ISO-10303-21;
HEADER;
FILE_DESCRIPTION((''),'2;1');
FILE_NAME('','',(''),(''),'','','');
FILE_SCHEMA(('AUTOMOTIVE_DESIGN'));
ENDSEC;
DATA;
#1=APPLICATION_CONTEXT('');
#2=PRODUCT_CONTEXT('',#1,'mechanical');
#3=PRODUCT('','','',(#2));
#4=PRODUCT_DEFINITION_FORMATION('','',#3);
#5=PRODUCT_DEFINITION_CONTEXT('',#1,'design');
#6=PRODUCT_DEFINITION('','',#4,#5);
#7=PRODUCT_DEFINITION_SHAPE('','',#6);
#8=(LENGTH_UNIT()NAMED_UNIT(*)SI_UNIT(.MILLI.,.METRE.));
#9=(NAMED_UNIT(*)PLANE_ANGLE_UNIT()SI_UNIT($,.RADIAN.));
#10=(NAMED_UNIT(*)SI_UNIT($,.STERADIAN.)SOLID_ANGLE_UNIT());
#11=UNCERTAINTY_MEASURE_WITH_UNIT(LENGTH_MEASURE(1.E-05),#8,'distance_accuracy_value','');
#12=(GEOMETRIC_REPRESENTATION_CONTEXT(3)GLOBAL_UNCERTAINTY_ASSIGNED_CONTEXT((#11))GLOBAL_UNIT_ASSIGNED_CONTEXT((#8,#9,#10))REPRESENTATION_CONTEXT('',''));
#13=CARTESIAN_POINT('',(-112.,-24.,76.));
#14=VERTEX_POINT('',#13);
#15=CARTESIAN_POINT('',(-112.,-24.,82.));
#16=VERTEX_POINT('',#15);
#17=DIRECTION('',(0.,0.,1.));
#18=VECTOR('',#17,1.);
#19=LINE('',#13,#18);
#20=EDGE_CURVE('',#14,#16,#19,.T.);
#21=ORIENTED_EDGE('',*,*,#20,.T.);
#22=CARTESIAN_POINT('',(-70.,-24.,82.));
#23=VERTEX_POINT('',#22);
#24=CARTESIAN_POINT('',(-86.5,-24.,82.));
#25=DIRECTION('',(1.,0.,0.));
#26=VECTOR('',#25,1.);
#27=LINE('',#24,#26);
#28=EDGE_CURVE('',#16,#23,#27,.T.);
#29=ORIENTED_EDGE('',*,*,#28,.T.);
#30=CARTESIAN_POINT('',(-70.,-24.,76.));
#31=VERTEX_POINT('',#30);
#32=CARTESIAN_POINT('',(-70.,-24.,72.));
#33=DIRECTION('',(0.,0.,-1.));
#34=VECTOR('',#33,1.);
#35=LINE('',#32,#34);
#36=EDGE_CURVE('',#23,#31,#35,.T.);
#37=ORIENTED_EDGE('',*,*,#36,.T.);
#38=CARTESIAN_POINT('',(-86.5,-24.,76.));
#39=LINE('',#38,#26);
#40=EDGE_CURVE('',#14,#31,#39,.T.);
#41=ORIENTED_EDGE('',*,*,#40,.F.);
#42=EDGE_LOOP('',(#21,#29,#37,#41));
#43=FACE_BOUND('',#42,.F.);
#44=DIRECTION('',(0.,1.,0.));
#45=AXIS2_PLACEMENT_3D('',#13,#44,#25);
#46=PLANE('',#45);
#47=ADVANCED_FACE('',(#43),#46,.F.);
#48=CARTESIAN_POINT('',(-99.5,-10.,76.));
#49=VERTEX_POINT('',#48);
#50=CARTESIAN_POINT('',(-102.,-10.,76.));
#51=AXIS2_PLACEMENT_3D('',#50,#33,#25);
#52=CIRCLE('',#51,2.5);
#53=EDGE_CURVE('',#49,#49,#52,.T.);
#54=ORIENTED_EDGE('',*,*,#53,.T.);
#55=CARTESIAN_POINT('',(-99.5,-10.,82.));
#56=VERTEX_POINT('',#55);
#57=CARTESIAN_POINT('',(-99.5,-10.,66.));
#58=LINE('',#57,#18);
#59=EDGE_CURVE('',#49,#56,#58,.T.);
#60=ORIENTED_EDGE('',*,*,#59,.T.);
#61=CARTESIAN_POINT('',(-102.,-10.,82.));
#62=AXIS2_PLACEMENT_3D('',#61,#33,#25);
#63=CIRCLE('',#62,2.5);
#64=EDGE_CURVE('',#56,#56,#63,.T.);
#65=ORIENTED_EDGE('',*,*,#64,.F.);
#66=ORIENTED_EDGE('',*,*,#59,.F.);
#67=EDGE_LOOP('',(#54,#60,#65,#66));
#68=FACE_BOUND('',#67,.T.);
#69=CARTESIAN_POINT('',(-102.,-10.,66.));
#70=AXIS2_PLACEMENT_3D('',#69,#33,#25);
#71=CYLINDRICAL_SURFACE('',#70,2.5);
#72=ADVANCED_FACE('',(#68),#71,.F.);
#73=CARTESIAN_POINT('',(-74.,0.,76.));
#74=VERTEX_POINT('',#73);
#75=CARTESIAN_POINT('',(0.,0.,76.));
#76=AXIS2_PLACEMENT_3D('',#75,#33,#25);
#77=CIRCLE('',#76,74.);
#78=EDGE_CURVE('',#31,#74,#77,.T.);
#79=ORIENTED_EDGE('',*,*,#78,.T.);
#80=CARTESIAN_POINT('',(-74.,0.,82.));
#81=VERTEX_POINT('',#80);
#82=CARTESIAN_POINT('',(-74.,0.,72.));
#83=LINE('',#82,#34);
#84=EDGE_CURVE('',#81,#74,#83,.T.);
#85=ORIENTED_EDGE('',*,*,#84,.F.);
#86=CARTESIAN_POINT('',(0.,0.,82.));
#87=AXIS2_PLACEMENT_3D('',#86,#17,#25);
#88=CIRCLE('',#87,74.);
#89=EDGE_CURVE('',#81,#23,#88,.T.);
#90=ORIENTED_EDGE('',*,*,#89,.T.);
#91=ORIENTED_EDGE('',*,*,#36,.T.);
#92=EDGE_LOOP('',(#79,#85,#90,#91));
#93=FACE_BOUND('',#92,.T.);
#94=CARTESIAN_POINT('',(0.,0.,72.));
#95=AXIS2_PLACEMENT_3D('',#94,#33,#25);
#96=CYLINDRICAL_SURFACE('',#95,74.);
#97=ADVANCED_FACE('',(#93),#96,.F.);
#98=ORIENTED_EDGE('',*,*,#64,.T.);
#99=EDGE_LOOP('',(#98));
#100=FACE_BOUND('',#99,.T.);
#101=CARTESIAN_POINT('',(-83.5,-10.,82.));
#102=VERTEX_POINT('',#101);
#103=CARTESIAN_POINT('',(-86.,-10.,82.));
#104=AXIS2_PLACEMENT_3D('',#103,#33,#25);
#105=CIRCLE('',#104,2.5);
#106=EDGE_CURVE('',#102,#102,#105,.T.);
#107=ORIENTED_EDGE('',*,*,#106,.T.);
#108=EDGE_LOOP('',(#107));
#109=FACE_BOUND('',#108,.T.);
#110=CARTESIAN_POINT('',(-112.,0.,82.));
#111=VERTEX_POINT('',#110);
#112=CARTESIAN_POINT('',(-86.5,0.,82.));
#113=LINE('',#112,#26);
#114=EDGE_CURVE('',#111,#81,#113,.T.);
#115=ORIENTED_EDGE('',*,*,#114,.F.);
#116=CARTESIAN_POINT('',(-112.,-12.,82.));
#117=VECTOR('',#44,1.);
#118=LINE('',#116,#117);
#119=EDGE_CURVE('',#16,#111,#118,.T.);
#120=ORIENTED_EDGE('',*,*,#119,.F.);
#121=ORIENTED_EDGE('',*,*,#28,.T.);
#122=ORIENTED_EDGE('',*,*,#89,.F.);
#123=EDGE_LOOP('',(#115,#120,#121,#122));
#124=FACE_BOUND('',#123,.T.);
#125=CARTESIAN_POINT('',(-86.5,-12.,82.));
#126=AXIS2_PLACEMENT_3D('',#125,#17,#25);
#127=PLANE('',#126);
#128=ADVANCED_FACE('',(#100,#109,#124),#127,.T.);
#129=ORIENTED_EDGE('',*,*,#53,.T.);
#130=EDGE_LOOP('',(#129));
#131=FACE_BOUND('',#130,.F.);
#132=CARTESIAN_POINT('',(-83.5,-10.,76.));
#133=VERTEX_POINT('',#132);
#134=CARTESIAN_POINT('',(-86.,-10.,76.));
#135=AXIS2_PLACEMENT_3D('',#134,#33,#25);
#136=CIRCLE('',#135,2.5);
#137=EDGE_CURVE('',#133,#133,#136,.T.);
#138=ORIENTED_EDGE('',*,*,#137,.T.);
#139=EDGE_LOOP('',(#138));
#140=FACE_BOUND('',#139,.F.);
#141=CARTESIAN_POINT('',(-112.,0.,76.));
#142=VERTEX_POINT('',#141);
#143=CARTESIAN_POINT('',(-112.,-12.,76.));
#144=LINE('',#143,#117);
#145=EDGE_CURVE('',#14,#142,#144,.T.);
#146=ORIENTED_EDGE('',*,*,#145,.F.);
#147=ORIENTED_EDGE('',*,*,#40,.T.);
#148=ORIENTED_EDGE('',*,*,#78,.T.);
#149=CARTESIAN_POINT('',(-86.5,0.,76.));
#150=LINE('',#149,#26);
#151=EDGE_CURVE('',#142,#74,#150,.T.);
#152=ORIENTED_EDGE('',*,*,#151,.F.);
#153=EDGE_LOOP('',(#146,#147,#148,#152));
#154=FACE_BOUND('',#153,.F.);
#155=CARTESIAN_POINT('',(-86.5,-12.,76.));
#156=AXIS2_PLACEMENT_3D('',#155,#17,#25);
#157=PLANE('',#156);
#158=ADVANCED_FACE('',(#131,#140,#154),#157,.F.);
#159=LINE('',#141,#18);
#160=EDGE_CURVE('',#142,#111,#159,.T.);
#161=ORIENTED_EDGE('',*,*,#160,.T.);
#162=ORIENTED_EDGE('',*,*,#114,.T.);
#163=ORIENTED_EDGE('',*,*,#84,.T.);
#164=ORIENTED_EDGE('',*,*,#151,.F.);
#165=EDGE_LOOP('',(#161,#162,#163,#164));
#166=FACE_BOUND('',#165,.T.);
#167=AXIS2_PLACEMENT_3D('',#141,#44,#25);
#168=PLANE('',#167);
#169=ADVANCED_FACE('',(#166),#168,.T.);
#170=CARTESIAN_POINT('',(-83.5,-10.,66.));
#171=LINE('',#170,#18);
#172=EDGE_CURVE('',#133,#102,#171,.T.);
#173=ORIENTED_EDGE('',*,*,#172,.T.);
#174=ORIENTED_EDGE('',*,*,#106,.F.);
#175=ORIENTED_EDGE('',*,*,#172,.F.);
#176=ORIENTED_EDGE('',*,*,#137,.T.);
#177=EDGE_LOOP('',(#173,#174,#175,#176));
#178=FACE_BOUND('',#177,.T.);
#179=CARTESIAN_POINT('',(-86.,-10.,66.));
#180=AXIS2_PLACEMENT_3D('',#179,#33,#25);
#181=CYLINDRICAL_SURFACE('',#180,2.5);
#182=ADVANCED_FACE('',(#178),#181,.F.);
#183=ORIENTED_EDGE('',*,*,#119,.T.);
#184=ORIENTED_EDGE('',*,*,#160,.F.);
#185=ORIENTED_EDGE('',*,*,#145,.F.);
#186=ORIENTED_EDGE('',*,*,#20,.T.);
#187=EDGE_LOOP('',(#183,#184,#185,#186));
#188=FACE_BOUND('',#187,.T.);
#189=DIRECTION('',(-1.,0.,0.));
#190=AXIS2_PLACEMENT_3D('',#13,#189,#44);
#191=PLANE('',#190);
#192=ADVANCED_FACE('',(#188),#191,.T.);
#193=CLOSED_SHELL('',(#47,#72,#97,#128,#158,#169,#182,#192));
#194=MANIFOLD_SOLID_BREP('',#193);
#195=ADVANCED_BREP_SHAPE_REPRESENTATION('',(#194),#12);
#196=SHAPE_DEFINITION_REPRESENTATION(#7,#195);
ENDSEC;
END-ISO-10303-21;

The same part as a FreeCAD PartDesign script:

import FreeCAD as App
import Part
import Sketcher


def add_polygon(sketch, points):
    """Adds a closed chain of lines whose ends are joined by coincident constraints."""
    first, n = sketch.GeometryCount, len(points)
    for a, b in zip(points, points[1:] + points[:1]):
        sketch.addGeometry(Part.LineSegment(App.Vector(*a, 0), App.Vector(*b, 0)), False)
    for i in range(n):
        sketch.addConstraint(Sketcher.Constraint("Coincident", first + i, 2, first + (i + 1) % n, 1))

doc = App.newDocument("Part")
body = doc.addObject("PartDesign::Body", "Body")

# Sketch on XY plane
sketch1 = doc.addObject("Sketcher::SketchObject", "Sketch")
body.addObject(sketch1)
sketch1.AttachmentSupport = (doc.XY_Plane, [""])
sketch1.MapMode = "FlatFace"
sketch1.AttachmentOffset = App.Placement(App.Vector(0, 0, 66), App.Rotation())
sketch1.addGeometry(Part.Circle(App.Vector(-86, -10, 0), App.Vector(0, 0, 1), 2.5), False)
sketch1.addConstraint(Sketcher.Constraint("Diameter", 0, 5.0))
sketch1.addConstraint(Sketcher.Constraint("DistanceX", 0, 3, -1, 1, 86.0))
sketch1.addConstraint(Sketcher.Constraint("DistanceY", 0, 3, -1, 1, 10.0))
pad1 = doc.addObject("PartDesign::Pad", "Pad")
body.addObject(pad1)
pad1.Profile = sketch1
pad1.Length = 20
body2 = doc.addObject("PartDesign::Body", "Body001")
body2.AllowCompound = True

# Sketch on XY plane
sketch2 = doc.addObject("Sketcher::SketchObject", "Sketch001")
body2.addObject(sketch2)
sketch2.AttachmentSupport = (doc.getObject("XY_Plane001"), [""])
sketch2.MapMode = "FlatFace"
sketch2.AttachmentOffset = App.Placement(App.Vector(0, 0, 66), App.Rotation())
sketch2.addGeometry(Part.Circle(App.Vector(-102, -10, 0), App.Vector(0, 0, 1), 2.5), False)
sketch2.addConstraint(Sketcher.Constraint("Diameter", 0, 5.0))
sketch2.addConstraint(Sketcher.Constraint("DistanceX", 0, 3, -1, 1, 102.0))
sketch2.addConstraint(Sketcher.Constraint("DistanceY", 0, 3, -1, 1, 10.0))
pad2 = doc.addObject("PartDesign::Pad", "Pad001")
body2.addObject(pad2)
pad2.Profile = sketch2
pad2.Length = 20
doc.recompute()

boolean = doc.addObject("PartDesign::Boolean", "Boolean")
body2.addObject(boolean)
boolean.Type = "Fuse"
boolean.addObjects([body])
body3 = doc.addObject("PartDesign::Body", "Body002")

# Sketch on XY plane
sketch3 = doc.addObject("Sketcher::SketchObject", "Sketch002")
body3.addObject(sketch3)
sketch3.AttachmentSupport = (doc.getObject("XY_Plane002"), [""])
sketch3.MapMode = "FlatFace"
sketch3.AttachmentOffset = App.Placement(App.Vector(0, 0, 72), App.Rotation())
sketch3.addGeometry(Part.Circle(App.Vector(0, 0, 0), App.Vector(0, 0, 1), 74), False)
sketch3.addConstraint(Sketcher.Constraint("Coincident", 0, 3, -1, 1))
sketch3.addConstraint(Sketcher.Constraint("Diameter", 0, 148.0))
pad3 = doc.addObject("PartDesign::Pad", "Pad002")
body3.addObject(pad3)
pad3.Profile = sketch3
pad3.Length = 10
body4 = doc.addObject("PartDesign::Body", "Body003")

# Sketch on XY plane
sketch4 = doc.addObject("Sketcher::SketchObject", "Sketch003")
body4.addObject(sketch4)
sketch4.AttachmentSupport = (doc.getObject("XY_Plane003"), [""])
sketch4.MapMode = "FlatFace"
sketch4.AttachmentOffset = App.Placement(App.Vector(0, 0, 76), App.Rotation())
add_polygon(sketch4, [(-112, 0), (-112, -24), (-61, -24), (-61, 0)])  # lines 0-3
sketch4.addConstraint(Sketcher.Constraint("Vertical", 0))
sketch4.addConstraint(Sketcher.Constraint("Horizontal", 1))
sketch4.addConstraint(Sketcher.Constraint("Vertical", 2))
sketch4.addConstraint(Sketcher.Constraint("Horizontal", 3))
sketch4.addConstraint(Sketcher.Constraint("PointOnObject", 2, 2, -1))
sketch4.addConstraint(Sketcher.Constraint("DistanceX", 1, 1, 1, 2, 51.0))
sketch4.addConstraint(Sketcher.Constraint("DistanceY", 0, 2, 0, 1, 24.0))
sketch4.addConstraint(Sketcher.Constraint("DistanceX", 0, 2, -1, 1, 112.0))
pad4 = doc.addObject("PartDesign::Pad", "Pad003")
body4.addObject(pad4)
pad4.Profile = sketch4
pad4.Length = 6
doc.recompute()

boolean2 = doc.addObject("PartDesign::Boolean", "Boolean001")
body4.addObject(boolean2)
boolean2.Type = "Cut"
boolean2.addObjects([body3])
doc.recompute()

boolean3 = doc.addObject("PartDesign::Boolean", "Boolean002")
body4.addObject(boolean3)
boolean3.Type = "Cut"
boolean3.addObjects([body2])

doc.recompute()
